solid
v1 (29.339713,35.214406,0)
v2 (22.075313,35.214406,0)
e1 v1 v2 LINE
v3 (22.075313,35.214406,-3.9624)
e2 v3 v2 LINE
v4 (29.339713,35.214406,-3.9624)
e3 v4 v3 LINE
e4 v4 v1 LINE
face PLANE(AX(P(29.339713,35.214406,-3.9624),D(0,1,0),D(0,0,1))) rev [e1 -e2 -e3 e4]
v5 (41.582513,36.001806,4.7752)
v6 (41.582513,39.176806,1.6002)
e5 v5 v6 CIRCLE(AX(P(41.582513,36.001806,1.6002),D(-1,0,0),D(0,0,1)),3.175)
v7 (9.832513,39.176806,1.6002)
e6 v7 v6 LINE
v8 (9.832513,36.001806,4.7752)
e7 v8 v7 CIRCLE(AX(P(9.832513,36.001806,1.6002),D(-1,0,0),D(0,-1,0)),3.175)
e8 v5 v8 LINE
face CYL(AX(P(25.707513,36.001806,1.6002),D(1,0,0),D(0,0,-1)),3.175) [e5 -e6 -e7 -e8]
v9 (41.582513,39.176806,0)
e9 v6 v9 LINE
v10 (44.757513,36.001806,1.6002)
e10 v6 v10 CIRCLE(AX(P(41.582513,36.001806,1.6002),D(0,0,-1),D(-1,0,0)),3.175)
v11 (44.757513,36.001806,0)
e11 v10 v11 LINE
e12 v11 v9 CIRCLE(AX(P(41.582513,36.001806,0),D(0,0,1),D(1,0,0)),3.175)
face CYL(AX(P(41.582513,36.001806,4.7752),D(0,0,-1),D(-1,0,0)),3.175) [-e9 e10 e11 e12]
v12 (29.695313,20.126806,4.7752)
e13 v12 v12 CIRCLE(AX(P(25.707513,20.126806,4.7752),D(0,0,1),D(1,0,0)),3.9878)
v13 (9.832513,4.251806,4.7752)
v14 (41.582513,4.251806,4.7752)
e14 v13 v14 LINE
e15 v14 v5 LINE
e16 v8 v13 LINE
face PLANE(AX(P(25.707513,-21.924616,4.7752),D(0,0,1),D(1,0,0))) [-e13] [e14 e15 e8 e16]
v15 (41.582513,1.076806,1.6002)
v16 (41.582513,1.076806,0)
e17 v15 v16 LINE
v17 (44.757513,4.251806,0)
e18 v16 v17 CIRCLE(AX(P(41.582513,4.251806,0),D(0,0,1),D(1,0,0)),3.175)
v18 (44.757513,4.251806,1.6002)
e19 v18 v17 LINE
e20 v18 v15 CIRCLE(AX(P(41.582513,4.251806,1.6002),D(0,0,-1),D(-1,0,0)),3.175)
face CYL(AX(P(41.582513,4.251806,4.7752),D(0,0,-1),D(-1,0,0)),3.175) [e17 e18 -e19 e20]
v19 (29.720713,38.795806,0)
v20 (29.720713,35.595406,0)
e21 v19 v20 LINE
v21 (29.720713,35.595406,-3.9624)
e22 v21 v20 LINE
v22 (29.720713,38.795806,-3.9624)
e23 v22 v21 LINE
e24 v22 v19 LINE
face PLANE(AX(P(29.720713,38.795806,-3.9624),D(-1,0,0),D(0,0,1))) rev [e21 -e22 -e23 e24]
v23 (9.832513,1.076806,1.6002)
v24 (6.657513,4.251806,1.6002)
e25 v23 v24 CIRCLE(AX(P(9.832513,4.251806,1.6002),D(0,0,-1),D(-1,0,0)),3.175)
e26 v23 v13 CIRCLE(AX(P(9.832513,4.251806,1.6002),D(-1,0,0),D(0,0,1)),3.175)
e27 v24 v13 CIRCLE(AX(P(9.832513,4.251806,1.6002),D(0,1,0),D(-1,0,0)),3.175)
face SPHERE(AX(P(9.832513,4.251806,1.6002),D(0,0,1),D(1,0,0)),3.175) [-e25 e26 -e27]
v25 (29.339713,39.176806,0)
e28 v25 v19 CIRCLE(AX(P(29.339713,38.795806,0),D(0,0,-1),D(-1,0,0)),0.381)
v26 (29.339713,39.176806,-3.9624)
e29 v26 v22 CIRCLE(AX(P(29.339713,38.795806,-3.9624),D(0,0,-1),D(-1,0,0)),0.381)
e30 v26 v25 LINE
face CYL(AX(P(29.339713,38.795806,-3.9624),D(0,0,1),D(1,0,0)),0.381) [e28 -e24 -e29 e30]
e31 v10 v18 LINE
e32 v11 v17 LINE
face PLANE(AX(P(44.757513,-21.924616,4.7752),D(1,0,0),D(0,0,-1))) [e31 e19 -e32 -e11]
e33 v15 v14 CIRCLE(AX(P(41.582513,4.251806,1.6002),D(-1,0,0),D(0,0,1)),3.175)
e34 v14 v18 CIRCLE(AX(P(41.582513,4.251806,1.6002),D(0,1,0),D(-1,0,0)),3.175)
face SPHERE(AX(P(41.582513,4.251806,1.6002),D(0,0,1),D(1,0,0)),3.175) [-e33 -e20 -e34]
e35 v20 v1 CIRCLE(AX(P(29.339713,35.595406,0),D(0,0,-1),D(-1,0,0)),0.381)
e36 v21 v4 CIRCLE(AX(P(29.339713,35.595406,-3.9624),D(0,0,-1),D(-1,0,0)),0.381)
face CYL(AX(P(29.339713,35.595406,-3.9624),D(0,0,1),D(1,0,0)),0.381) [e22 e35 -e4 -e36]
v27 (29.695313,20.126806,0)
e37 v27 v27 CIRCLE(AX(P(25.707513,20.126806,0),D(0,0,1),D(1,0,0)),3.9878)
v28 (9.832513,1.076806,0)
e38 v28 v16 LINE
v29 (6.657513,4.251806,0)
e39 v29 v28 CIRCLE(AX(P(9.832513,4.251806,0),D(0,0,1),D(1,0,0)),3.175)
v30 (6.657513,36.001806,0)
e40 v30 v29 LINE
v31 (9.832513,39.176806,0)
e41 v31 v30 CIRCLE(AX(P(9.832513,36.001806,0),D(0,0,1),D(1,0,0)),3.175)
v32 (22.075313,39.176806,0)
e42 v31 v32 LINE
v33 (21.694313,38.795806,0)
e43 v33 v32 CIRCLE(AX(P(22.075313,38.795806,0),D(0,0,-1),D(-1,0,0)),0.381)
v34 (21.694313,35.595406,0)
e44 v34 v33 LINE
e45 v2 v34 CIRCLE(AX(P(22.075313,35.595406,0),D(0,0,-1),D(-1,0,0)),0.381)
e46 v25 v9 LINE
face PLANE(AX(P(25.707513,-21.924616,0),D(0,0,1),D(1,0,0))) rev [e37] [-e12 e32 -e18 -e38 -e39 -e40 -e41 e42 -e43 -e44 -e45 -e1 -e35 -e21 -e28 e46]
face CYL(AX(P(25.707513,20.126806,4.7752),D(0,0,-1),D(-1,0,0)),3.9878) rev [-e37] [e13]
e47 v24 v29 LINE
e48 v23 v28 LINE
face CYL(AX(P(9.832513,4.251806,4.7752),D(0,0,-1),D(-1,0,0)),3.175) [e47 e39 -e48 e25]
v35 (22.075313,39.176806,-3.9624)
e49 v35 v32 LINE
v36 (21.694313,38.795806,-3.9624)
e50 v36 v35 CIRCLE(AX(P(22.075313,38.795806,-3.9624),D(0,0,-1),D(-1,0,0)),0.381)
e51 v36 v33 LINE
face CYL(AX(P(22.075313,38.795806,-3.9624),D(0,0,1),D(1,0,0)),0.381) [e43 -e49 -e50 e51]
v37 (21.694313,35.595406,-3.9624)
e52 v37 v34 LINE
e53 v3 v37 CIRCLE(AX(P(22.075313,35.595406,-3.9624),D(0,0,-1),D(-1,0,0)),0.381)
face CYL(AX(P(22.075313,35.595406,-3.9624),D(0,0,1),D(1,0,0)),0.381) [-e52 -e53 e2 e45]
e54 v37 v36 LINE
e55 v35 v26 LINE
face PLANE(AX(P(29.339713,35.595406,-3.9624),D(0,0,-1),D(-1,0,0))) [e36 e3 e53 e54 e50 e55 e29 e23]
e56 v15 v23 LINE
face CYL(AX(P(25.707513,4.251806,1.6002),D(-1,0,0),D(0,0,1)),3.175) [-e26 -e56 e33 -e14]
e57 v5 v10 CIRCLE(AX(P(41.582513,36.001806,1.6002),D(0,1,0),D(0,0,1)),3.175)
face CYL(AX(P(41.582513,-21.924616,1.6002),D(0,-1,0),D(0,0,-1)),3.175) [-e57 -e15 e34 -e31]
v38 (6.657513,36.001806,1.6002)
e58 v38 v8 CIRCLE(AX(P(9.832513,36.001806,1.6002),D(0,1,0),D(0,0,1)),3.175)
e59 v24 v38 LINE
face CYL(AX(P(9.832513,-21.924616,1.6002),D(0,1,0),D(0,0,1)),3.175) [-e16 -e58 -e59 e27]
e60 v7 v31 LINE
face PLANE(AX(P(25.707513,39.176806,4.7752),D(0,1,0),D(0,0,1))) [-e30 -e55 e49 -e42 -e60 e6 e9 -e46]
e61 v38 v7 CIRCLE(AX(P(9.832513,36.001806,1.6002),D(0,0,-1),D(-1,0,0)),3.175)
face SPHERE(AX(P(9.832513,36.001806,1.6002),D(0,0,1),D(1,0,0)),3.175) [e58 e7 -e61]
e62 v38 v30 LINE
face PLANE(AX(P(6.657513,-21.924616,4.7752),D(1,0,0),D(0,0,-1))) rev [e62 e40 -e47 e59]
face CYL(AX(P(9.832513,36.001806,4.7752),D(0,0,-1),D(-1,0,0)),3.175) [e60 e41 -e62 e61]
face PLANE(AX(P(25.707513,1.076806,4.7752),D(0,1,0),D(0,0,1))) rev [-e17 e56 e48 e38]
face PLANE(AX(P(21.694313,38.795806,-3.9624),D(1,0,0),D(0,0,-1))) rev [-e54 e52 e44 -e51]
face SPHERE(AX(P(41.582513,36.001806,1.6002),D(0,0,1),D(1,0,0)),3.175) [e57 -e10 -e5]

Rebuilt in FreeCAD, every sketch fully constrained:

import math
import FreeCAD as App
import Part
import Sketcher

V = App.Vector
Q = App.Units.Quantity


def edges_at(feature, points):
    """Names of the edges that pass closest to the given points."""
    edges = feature.Shape.Edges
    near = lambda p: min(range(len(edges)), key=lambda i: edges[i].distToShape(Part.Vertex(*p))[0])
    return sorted({f"Edge{near(p) + 1}" for p in points})

doc = App.newDocument("Part")
body = doc.addObject("PartDesign::Body", "Body")

sketch1 = body.newObject("Sketcher::SketchObject", "Sketch")
sketch1.AttachmentSupport = (doc.getObject("XY_Plane"), [""])
sketch1.MapMode = "FlatFace"
sketch1.addGeometry([
    Part.LineSegment(V(9.832513, 1.076806, 0), V(41.582513, 1.076806, 0)),
    Part.ArcOfCircle(Part.Circle(V(41.582513, 4.251806, 0), V(0, 0, 1), 3.175), math.radians(-90), math.radians(0)),
    Part.LineSegment(V(44.757513, 4.251806, 0), V(44.757513, 36.001806, 0)),
    Part.ArcOfCircle(Part.Circle(V(41.582513, 36.001806, 0), V(0, 0, 1), 3.175), math.radians(0), math.radians(90)),
    Part.LineSegment(V(41.582513, 39.176806, 0), V(9.832513, 39.176806, 0)),
    Part.ArcOfCircle(Part.Circle(V(9.832513, 36.001806, 0), V(0, 0, 1), 3.175), math.radians(90), math.radians(180)),
    Part.LineSegment(V(6.657513, 36.001806, 0), V(6.657513, 4.251806, 0)),
    Part.ArcOfCircle(Part.Circle(V(9.832513, 4.251806, 0), V(0, 0, 1), 3.175), math.radians(-180), math.radians(-90)),
    Part.Circle(V(25.707513, 20.126806, 0), V(0, 0, 1), 3.9878),
], False)
sketch1.addConstraint([
    Sketcher.Constraint("Tangent", 0, 2, 1, 1),
    Sketcher.Constraint("Tangent", 1, 2, 2, 1),
    Sketcher.Constraint("Tangent", 2, 2, 3, 1),
    Sketcher.Constraint("Tangent", 3, 2, 4, 1),
    Sketcher.Constraint("Tangent", 4, 2, 5, 1),
    Sketcher.Constraint("Tangent", 5, 2, 6, 1),
    Sketcher.Constraint("Tangent", 6, 2, 7, 1),
    Sketcher.Constraint("Tangent", 7, 2, 0, 1),
    Sketcher.Constraint("Horizontal", 0),
    Sketcher.Constraint("Vertical", 2),
    Sketcher.Constraint("Horizontal", 4),
    Sketcher.Constraint("Vertical", 6),
    Sketcher.Constraint("Equal", 1, 3),
    Sketcher.Constraint("Equal", 3, 5),
    Sketcher.Constraint("Equal", 5, 7),
    Sketcher.Constraint("Equal", 4, 2),
    Sketcher.Constraint("Diameter", 8, Q("0.314 in")),
    Sketcher.Constraint("Radius", 1, Q("0.125 in")),
    Sketcher.Constraint("DistanceX", 0, 1, 0, 2, Q("1.25 in")),
    Sketcher.Constraint("DistanceY", 0, 2, 8, 3, Q("0.75 in")),
    Sketcher.Constraint("DistanceX", 8, 3, 1, 2, Q("0.75 in")),
    Sketcher.Constraint("DistanceX", -1, 1, 1, 3, 41.582513),
    Sketcher.Constraint("DistanceY", -1, 1, 1, 3, 4.251806),
])
pad1 = body.newObject("PartDesign::Pad", "Pad")
pad1.Profile = sketch1
pad1.Length = Q("0.188 in")
doc.recompute()

fillet = body.newObject("PartDesign::Fillet", "Fillet")
fillet.Base = (pad1, edges_at(pad1, [
    (25.708, 1.077, 4.775),
    (43.828, 2.007, 4.775),
    (44.758, 20.127, 4.775),
    (43.828, 38.247, 4.775),
    (25.708, 39.177, 4.775),
    (7.587, 38.247, 4.775),
    (6.658, 20.127, 4.775),
    (7.587, 2.007, 4.775),
]))
fillet.Radius = Q("0.125 in")

sketch2 = body.newObject("Sketcher::SketchObject", "Sketch001")
sketch2.AttachmentSupport = (doc.getObject("XY_Plane"), [""])
sketch2.MapMode = "FlatFace"
sketch2.addGeometry([
    Part.LineSegment(V(29.339713, 35.214406, 0), V(22.075313, 35.214406, 0)),
    Part.ArcOfCircle(Part.Circle(V(22.075313, 35.595406, 0), V(0, 0, 1), 0.381), math.radians(180), math.radians(270)),
    Part.LineSegment(V(21.694313, 35.595406, 0), V(21.694313, 38.795806, 0)),
    Part.ArcOfCircle(Part.Circle(V(22.075313, 38.795806, 0), V(0, 0, 1), 0.381), math.radians(90), math.radians(180)),
    Part.LineSegment(V(22.075313, 39.176806, 0), V(29.339713, 39.176806, 0)),
    Part.ArcOfCircle(Part.Circle(V(29.339713, 38.795806, 0), V(0, 0, 1), 0.381), math.radians(0), math.radians(90)),
    Part.LineSegment(V(29.720713, 38.795806, 0), V(29.720713, 35.595406, 0)),
    Part.ArcOfCircle(Part.Circle(V(29.339713, 35.595406, 0), V(0, 0, 1), 0.381), math.radians(-90), math.radians(0)),
], False)
sketch2.addConstraint([
    Sketcher.Constraint("Tangent", 0, 2, 1, 2),
    Sketcher.Constraint("Tangent", 1, 1, 2, 1),
    Sketcher.Constraint("Tangent", 2, 2, 3, 2),
    Sketcher.Constraint("Tangent", 3, 1, 4, 1),
    Sketcher.Constraint("Tangent", 4, 2, 5, 2),
    Sketcher.Constraint("Tangent", 5, 1, 6, 1),
    Sketcher.Constraint("Tangent", 6, 2, 7, 2),
    Sketcher.Constraint("Tangent", 7, 1, 0, 1),
    Sketcher.Constraint("Horizontal", 0),
    Sketcher.Constraint("Vertical", 2),
    Sketcher.Constraint("Horizontal", 4),
    Sketcher.Constraint("Vertical", 6),
    Sketcher.Constraint("Equal", 1, 3),
    Sketcher.Constraint("Equal", 3, 5),
    Sketcher.Constraint("Equal", 5, 7),
    Sketcher.Constraint("Radius", 1, Q("0.015 in")),
    Sketcher.Constraint("DistanceX", 0, 2, 0, 1, Q("0.286 in")),
    Sketcher.Constraint("DistanceY", 2, 1, 2, 2, Q("0.126 in")),
    Sketcher.Constraint("DistanceX", -1, 1, 1, 3, 22.075313),
    Sketcher.Constraint("DistanceY", -1, 1, 1, 3, 35.595406),
])
pad2 = body.newObject("PartDesign::Pad", "Pad001")
pad2.Profile = sketch2
pad2.Length = Q("0.156 in")
pad2.Reversed = True

doc.recompute()
